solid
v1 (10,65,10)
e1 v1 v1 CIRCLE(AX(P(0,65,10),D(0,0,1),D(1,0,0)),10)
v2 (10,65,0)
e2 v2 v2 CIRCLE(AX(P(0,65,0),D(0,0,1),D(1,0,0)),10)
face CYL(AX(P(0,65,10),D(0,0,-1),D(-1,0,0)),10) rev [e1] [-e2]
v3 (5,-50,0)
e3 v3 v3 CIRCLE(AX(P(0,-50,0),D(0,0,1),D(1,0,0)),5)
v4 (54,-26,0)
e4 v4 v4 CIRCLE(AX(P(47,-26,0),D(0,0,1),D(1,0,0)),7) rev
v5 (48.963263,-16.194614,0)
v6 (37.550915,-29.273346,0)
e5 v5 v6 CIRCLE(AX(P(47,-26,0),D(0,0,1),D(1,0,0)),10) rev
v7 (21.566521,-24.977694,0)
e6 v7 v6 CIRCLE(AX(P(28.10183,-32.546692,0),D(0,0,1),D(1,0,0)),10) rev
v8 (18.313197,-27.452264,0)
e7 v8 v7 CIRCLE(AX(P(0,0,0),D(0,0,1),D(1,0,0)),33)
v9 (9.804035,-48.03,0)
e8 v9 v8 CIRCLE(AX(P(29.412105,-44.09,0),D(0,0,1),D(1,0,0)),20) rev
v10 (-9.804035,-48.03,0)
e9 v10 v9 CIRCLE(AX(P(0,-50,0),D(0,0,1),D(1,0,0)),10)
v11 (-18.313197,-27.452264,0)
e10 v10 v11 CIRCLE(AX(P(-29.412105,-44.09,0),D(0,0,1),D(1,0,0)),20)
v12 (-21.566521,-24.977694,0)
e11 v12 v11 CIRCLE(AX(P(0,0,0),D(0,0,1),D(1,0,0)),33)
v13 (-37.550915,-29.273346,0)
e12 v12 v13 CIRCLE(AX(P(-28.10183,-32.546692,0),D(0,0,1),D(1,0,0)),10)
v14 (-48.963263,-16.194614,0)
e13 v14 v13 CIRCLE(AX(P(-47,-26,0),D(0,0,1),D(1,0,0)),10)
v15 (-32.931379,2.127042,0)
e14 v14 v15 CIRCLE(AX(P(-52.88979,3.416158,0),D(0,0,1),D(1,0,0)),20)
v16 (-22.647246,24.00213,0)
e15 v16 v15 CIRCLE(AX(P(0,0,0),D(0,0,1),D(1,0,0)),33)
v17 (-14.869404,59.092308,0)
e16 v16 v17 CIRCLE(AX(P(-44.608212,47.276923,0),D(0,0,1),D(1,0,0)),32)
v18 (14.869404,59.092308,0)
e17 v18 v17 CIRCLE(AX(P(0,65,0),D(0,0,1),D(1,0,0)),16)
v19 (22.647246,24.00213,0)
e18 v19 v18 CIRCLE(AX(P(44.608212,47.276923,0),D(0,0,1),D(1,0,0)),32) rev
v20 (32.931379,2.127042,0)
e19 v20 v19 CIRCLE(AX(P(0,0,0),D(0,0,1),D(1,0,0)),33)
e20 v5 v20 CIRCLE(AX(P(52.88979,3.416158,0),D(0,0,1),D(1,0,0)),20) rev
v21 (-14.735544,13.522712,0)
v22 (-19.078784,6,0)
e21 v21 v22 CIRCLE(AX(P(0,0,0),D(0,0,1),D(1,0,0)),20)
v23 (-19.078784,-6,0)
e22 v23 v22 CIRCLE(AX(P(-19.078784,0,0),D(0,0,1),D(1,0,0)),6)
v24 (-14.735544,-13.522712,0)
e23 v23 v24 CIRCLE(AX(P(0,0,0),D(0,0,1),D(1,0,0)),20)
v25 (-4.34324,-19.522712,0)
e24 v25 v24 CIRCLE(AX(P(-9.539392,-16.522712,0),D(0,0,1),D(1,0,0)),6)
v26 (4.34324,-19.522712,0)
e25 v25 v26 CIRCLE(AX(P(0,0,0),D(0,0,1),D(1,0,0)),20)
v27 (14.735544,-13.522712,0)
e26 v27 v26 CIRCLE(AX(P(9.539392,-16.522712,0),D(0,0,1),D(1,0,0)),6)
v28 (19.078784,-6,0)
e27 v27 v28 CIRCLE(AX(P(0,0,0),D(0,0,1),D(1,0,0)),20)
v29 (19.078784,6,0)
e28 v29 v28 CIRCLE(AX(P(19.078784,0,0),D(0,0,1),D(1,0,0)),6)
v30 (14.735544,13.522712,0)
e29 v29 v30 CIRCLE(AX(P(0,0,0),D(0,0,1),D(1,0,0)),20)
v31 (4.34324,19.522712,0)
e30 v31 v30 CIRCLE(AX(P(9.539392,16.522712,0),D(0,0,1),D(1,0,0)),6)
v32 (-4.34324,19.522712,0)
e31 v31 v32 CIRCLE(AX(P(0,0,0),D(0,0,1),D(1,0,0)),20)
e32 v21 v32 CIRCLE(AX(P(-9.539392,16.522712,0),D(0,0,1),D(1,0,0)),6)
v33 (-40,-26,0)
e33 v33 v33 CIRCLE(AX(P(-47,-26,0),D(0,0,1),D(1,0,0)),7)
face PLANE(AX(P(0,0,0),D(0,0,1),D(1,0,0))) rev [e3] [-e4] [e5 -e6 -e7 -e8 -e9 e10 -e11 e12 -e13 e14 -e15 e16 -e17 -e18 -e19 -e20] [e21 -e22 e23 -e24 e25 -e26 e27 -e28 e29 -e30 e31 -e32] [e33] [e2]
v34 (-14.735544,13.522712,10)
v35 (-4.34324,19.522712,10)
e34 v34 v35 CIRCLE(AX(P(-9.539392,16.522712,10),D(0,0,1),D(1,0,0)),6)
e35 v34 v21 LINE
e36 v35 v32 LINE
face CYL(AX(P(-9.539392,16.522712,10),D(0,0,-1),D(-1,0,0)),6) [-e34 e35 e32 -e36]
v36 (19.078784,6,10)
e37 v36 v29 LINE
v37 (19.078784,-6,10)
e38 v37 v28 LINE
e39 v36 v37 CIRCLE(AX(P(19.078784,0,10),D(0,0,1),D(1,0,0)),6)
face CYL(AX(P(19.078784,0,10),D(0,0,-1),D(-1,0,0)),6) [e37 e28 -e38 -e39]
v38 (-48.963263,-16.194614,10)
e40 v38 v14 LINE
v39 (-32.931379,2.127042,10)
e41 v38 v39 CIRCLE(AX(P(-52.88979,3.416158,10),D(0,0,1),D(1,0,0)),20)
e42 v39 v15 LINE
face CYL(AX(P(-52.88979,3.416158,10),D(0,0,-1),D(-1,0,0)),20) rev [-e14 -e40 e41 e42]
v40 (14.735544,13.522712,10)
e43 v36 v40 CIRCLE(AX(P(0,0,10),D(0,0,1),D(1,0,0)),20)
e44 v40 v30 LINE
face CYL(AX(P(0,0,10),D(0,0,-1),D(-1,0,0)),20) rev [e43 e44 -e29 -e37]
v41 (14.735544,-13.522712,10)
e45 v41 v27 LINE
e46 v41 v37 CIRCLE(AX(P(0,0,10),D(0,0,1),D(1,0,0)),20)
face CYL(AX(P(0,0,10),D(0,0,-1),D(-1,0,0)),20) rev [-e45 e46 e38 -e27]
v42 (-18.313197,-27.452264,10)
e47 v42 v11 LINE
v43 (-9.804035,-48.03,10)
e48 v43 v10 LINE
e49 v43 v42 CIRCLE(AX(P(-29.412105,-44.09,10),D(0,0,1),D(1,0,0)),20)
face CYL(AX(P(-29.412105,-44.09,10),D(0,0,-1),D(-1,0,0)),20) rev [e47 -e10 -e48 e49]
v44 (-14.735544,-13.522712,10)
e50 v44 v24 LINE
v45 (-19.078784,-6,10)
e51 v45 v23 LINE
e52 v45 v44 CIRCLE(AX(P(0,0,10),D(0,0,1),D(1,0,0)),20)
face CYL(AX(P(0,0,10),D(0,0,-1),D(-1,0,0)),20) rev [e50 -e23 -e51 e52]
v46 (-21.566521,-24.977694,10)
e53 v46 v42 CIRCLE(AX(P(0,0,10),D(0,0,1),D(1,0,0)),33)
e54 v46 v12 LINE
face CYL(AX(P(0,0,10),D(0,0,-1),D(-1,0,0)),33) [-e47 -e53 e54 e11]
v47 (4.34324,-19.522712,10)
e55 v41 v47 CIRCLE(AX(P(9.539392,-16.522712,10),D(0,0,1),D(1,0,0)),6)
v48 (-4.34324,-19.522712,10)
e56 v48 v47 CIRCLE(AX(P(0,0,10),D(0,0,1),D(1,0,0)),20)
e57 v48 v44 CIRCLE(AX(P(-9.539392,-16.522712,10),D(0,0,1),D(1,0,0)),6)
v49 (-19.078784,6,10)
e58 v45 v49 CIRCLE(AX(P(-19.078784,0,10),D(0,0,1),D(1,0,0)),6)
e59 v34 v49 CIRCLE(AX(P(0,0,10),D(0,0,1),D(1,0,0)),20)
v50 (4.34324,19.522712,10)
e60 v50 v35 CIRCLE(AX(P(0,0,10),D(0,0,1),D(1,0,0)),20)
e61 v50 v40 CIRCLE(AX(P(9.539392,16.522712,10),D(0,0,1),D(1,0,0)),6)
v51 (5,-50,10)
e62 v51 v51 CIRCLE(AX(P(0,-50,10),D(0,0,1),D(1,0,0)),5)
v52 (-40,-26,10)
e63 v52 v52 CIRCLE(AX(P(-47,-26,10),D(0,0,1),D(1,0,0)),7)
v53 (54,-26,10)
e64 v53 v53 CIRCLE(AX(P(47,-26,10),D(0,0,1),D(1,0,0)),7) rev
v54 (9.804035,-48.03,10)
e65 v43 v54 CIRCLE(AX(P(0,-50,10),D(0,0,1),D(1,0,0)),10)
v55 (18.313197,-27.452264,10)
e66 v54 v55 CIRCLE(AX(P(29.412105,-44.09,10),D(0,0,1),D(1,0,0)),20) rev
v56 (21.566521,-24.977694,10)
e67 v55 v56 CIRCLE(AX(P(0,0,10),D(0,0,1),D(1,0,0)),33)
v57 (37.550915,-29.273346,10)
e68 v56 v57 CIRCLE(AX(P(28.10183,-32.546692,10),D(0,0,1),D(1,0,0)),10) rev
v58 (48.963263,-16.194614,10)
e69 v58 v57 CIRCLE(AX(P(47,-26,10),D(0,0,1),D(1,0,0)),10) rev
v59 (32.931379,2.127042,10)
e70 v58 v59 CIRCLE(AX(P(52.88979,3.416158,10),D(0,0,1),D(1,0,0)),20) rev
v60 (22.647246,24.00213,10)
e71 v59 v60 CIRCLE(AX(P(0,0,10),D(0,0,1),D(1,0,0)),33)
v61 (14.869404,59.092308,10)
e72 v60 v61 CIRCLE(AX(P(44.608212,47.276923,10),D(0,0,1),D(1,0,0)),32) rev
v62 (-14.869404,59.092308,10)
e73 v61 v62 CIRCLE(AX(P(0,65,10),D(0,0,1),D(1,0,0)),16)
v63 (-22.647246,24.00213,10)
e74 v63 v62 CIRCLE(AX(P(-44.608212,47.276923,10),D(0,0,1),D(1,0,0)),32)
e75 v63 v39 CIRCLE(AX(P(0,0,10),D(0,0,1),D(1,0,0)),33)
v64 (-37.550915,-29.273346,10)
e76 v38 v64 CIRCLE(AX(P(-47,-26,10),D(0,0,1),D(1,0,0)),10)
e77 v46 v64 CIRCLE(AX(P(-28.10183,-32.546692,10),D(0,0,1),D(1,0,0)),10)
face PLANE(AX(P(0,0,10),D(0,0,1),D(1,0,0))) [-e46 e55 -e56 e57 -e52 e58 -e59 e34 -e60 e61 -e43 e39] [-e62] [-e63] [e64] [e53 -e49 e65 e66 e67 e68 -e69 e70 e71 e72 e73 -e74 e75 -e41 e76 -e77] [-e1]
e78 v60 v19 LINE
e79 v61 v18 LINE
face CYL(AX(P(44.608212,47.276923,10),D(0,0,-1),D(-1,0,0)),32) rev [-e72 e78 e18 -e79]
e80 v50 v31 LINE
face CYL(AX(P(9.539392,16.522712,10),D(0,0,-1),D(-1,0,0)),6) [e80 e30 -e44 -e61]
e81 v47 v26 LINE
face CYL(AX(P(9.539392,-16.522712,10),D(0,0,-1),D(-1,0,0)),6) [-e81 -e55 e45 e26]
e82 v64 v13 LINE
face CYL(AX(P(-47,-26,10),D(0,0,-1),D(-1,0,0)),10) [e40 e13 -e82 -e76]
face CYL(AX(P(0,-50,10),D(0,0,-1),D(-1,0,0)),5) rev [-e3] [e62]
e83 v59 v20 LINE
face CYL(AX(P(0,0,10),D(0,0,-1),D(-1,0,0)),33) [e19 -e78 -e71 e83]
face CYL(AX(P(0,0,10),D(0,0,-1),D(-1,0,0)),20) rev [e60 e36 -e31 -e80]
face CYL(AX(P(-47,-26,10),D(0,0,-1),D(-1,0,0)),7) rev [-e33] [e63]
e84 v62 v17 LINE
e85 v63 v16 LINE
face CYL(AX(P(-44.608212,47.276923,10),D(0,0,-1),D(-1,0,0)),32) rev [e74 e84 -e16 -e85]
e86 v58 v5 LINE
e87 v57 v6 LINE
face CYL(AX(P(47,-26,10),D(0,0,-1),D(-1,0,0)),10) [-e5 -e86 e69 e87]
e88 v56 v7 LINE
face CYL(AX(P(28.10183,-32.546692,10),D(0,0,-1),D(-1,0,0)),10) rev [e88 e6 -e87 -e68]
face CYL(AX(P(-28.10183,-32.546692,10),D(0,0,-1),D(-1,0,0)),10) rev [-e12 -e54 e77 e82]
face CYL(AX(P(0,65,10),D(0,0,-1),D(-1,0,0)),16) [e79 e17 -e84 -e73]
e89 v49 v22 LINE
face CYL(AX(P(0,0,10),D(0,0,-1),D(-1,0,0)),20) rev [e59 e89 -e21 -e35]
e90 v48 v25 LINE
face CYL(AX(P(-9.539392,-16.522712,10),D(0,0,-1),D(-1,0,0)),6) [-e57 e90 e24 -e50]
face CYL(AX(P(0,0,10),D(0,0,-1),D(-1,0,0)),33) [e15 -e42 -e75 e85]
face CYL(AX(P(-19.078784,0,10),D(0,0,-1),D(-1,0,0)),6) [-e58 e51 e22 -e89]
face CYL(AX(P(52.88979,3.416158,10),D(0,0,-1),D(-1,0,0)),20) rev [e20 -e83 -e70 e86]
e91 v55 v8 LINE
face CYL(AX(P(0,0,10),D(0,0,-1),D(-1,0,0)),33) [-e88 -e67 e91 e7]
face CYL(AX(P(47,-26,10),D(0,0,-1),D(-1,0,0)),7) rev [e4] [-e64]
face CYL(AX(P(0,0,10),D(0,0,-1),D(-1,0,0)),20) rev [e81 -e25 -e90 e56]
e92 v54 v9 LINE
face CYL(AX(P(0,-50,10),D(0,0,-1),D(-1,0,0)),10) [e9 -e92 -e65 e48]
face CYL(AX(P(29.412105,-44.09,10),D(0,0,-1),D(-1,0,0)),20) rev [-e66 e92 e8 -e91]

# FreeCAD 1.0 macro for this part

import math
import FreeCAD as App
import Part
import Sketcher

doc = App.newDocument("Part")
body = doc.addObject("PartDesign::Body", "Body")

# Sketch on XY plane
sketch1 = body.newObject("Sketcher::SketchObject", "Sketch")
sketch1.AttachmentSupport = (doc.getObject("XY_Plane"), [""])
sketch1.MapMode = "FlatFace"
sketch1.addGeometry([
    Part.ArcOfCircle(Part.Circle(App.Vector(-44.608212, 47.276923, 0), App.Vector(0, 0, 1), 32), math.radians(-46.663631), math.radians(21.668185)),  # 0
    Part.ArcOfCircle(Part.Circle(App.Vector(0, 0, 0), App.Vector(0, 0, 1), 33), math.radians(133.336369), math.radians(176.304392)),  # 1
    Part.ArcOfCircle(Part.Circle(App.Vector(-52.88979, 3.416158, 0), App.Vector(0, 0, 1), 20), math.radians(-78.677786), math.radians(-3.695608)),  # 2
    Part.ArcOfCircle(Part.Circle(App.Vector(-47, -26, 0), App.Vector(0, 0, 1), 10), math.radians(101.322214), math.radians(340.892924)),  # 3
    Part.ArcOfCircle(Part.Circle(App.Vector(-28.10183, -32.546692, 0), App.Vector(0, 0, 1), 10), math.radians(49.191649), math.radians(160.892924)),  # 4
    Part.ArcOfCircle(Part.Circle(App.Vector(0, 0, 0), App.Vector(0, 0, 1), 33), math.radians(-130.808351), math.radians(-123.706952)),  # 5
    Part.ArcOfCircle(Part.Circle(App.Vector(-29.412105, -44.09, 0), App.Vector(0, 0, 1), 20), math.radians(-11.361582), math.radians(56.293048)),  # 6
    Part.ArcOfCircle(Part.Circle(App.Vector(0, -50, 0), App.Vector(0, 0, 1), 10), math.radians(168.638418), math.radians(371.361582)),  # 7
    Part.ArcOfCircle(Part.Circle(App.Vector(29.412105, -44.09, 0), App.Vector(0, 0, 1), 20), math.radians(123.706952), math.radians(191.361582)),  # 8
    Part.ArcOfCircle(Part.Circle(App.Vector(0, 0, 0), App.Vector(0, 0, 1), 33), math.radians(-56.293048), math.radians(-49.191649)),  # 9
    Part.ArcOfCircle(Part.Circle(App.Vector(28.10183, -32.546692, 0), App.Vector(0, 0, 1), 10), math.radians(19.107076), math.radians(130.808351)),  # 10
    Part.ArcOfCircle(Part.Circle(App.Vector(47, -26, 0), App.Vector(0, 0, 1), 10), math.radians(-160.892924), math.radians(78.677786)),  # 11
    Part.ArcOfCircle(Part.Circle(App.Vector(52.88979, 3.416158, 0), App.Vector(0, 0, 1), 20), math.radians(-176.304392), math.radians(-101.322214)),  # 12
    Part.ArcOfCircle(Part.Circle(App.Vector(0, 0, 0), App.Vector(0, 0, 1), 33), math.radians(3.695608), math.radians(46.663631)),  # 13
    Part.ArcOfCircle(Part.Circle(App.Vector(44.608212, 47.276923, 0), App.Vector(0, 0, 1), 32), math.radians(158.331815), math.radians(226.663631)),  # 14
    Part.ArcOfCircle(Part.Circle(App.Vector(0, 65, 0), App.Vector(0, 0, 1), 16), math.radians(-21.668185), math.radians(201.668185)),  # 15
    Part.Circle(App.Vector(-47, -26, 0), App.Vector(0, 0, 1), 7),  # 16
    Part.Circle(App.Vector(0, -50, 0), App.Vector(0, 0, 1), 5),  # 17
    Part.Circle(App.Vector(47, -26, 0), App.Vector(0, 0, 1), 7),  # 18
    Part.ArcOfCircle(Part.Circle(App.Vector(-9.539392, -16.522712, 0), App.Vector(0, 0, 1), 6), math.radians(-30), math.radians(150)),  # 19
    Part.ArcOfCircle(Part.Circle(App.Vector(0, 0, 0), App.Vector(0, 0, 1), 20), math.radians(-162.542397), math.radians(-137.457603)),  # 20
    Part.ArcOfCircle(Part.Circle(App.Vector(-19.078784, 0, 0), App.Vector(0, 0, 1), 6), math.radians(-90), math.radians(90)),  # 21
    Part.ArcOfCircle(Part.Circle(App.Vector(0, 0, 0), App.Vector(0, 0, 1), 20), math.radians(137.457603), math.radians(162.542397)),  # 22
    Part.ArcOfCircle(Part.Circle(App.Vector(-9.539392, 16.522712, 0), App.Vector(0, 0, 1), 6), math.radians(-150), math.radians(30)),  # 23
    Part.ArcOfCircle(Part.Circle(App.Vector(0, 0, 0), App.Vector(0, 0, 1), 20), math.radians(77.457603), math.radians(102.542397)),  # 24
    Part.ArcOfCircle(Part.Circle(App.Vector(9.539392, 16.522712, 0), App.Vector(0, 0, 1), 6), math.radians(150), math.radians(330)),  # 25
    Part.ArcOfCircle(Part.Circle(App.Vector(0, 0, 0), App.Vector(0, 0, 1), 20), math.radians(17.457603), math.radians(42.542397)),  # 26
    Part.ArcOfCircle(Part.Circle(App.Vector(19.078784, 0, 0), App.Vector(0, 0, 1), 6), math.radians(90), math.radians(270)),  # 27
    Part.ArcOfCircle(Part.Circle(App.Vector(0, 0, 0), App.Vector(0, 0, 1), 20), math.radians(-42.542397), math.radians(-17.457603)),  # 28
    Part.ArcOfCircle(Part.Circle(App.Vector(9.539392, -16.522712, 0), App.Vector(0, 0, 1), 6), math.radians(30), math.radians(210)),  # 29
    Part.ArcOfCircle(Part.Circle(App.Vector(0, 0, 0), App.Vector(0, 0, 1), 20), math.radians(-102.542397), math.radians(-77.457603)),  # 30
    Part.Circle(App.Vector(0, 65, 0), App.Vector(0, 0, 1), 10),  # 31
], False)
sketch1.addConstraint([
    Sketcher.Constraint("Tangent", 0, 1, 1, 1),
    Sketcher.Constraint("Tangent", 1, 2, 2, 2),
    Sketcher.Constraint("Tangent", 2, 1, 3, 1),
    Sketcher.Constraint("Tangent", 3, 2, 4, 2),
    Sketcher.Constraint("Tangent", 4, 1, 5, 1),
    Sketcher.Constraint("Tangent", 5, 2, 6, 2),
    Sketcher.Constraint("Tangent", 6, 1, 7, 1),
    Sketcher.Constraint("Tangent", 7, 2, 8, 2),
    Sketcher.Constraint("Tangent", 8, 1, 9, 1),
    Sketcher.Constraint("Tangent", 9, 2, 10, 2),
    Sketcher.Constraint("Tangent", 10, 1, 11, 1),
    Sketcher.Constraint("Tangent", 11, 2, 12, 2),
    Sketcher.Constraint("Tangent", 12, 1, 13, 1),
    Sketcher.Constraint("Tangent", 13, 2, 14, 2),
    Sketcher.Constraint("Tangent", 14, 1, 15, 1),
    Sketcher.Constraint("Tangent", 15, 2, 0, 2),
    Sketcher.Constraint("Coincident", 19, 2, 20, 2),
    Sketcher.Constraint("Coincident", 20, 1, 21, 1),
    Sketcher.Constraint("Coincident", 21, 2, 22, 2),
    Sketcher.Constraint("Coincident", 22, 1, 23, 1),
    Sketcher.Constraint("Coincident", 23, 2, 24, 2),
    Sketcher.Constraint("Coincident", 24, 1, 25, 1),
    Sketcher.Constraint("Coincident", 25, 2, 26, 2),
    Sketcher.Constraint("Coincident", 26, 1, 27, 1),
    Sketcher.Constraint("Coincident", 27, 2, 28, 2),
    Sketcher.Constraint("Coincident", 28, 1, 29, 1),
    Sketcher.Constraint("Coincident", 29, 2, 30, 2),
    Sketcher.Constraint("Coincident", 30, 1, 19, 1),
    Sketcher.Constraint("Coincident", 1, 3, -1, 1),
    Sketcher.Constraint("Coincident", 5, 3, -1, 1),
    Sketcher.Constraint("Coincident", 9, 3, -1, 1),
    Sketcher.Constraint("Coincident", 13, 3, -1, 1),
    Sketcher.Constraint("Coincident", 20, 3, -1, 1),
    Sketcher.Constraint("Coincident", 22, 3, -1, 1),
    Sketcher.Constraint("Coincident", 24, 3, -1, 1),
    Sketcher.Constraint("Coincident", 26, 3, -1, 1),
    Sketcher.Constraint("Coincident", 28, 3, -1, 1),
    Sketcher.Constraint("Coincident", 30, 3, -1, 1),
    Sketcher.Constraint("Coincident", 16, 3, 3, 3),
    Sketcher.Constraint("Coincident", 17, 3, 7, 3),
    Sketcher.Constraint("Coincident", 18, 3, 11, 3),
    Sketcher.Constraint("Coincident", 31, 3, 15, 3),
    Sketcher.Constraint("Equal", 3, 4),
    Sketcher.Constraint("Equal", 1, 5),
    Sketcher.Constraint("Equal", 2, 6),
    Sketcher.Constraint("Equal", 4, 7),
    Sketcher.Constraint("Equal", 6, 8),
    Sketcher.Constraint("Equal", 5, 9),
    Sketcher.Constraint("Equal", 7, 10),
    Sketcher.Constraint("Equal", 10, 11),
    Sketcher.Constraint("Equal", 8, 12),
    Sketcher.Constraint("Equal", 9, 13),
    Sketcher.Constraint("Equal", 0, 14),
    Sketcher.Constraint("Equal", 16, 18),
    Sketcher.Constraint("Equal", 12, 20),
    Sketcher.Constraint("Equal", 19, 21),
    Sketcher.Constraint("Equal", 20, 22),
    Sketcher.Constraint("Equal", 21, 23),
    Sketcher.Constraint("Equal", 22, 24),
    Sketcher.Constraint("Equal", 23, 25),
    Sketcher.Constraint("Equal", 24, 26),
    Sketcher.Constraint("Equal", 25, 27),
    Sketcher.Constraint("Equal", 26, 28),
    Sketcher.Constraint("Equal", 27, 29),
    Sketcher.Constraint("Equal", 28, 30),
    Sketcher.Constraint("Equal", 11, 31),
    Sketcher.Constraint("Symmetric", 19, 3, 25, 3, -1, 1),
    Sketcher.Constraint("Symmetric", 21, 3, 27, 3, -1, 1),
    Sketcher.Constraint("Symmetric", 23, 3, 29, 3, -1, 1),
    Sketcher.Constraint("Symmetric", 3, 3, 11, 3, -2),
    Sketcher.Constraint("Symmetric", 23, 3, 25, 3, -2),
    Sketcher.Constraint("PointOnObject", 7, 3, -2),
    Sketcher.Constraint("PointOnObject", 15, 3, -2),
    Sketcher.Constraint("PointOnObject", 21, 3, -1),
    Sketcher.Constraint("Vertical", 21, 3, 20, 1),
    Sketcher.Constraint("Diameter", 16, 14.0),
    Sketcher.Constraint("Diameter", 17, 10.0),
    Sketcher.Constraint("Diameter", 31, 20.0),
    Sketcher.Constraint("Radius", 0, 32.0),
    Sketcher.Constraint("Radius", 1, 33.0),
    Sketcher.Constraint("Radius", 2, 20.0),
    Sketcher.Constraint("Radius", 15, 16.0),
    Sketcher.Constraint("Radius", 19, 6.0),
    Sketcher.Constraint("DistanceX", 3, 3, -1, 1, 47.0),
    Sketcher.Constraint("DistanceY", 3, 3, -1, 1, 26.0),
    Sketcher.Constraint("DistanceY", 7, 3, -1, 1, 50.0),
    Sketcher.Constraint("DistanceY", -1, 1, 15, 3, 65.0),
    Sketcher.Constraint("DistanceY", 19, 3, 19, 2, 3.0),
    Sketcher.Constraint("DistanceY", 23, 3, 23, 2, 3.0),
])
pad1 = body.newObject("PartDesign::Pad", "Pad")
pad1.Profile = sketch1
pad1.Length = 10

doc.recompute()
